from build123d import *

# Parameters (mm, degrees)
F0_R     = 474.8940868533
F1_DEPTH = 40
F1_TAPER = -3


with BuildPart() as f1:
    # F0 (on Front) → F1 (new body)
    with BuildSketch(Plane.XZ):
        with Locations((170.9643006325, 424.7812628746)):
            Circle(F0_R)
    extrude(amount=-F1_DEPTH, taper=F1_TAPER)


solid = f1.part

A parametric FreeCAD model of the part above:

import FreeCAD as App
import Part
import Sketcher
Q = App.Units.Quantity

doc = App.newDocument("Part")
body = doc.addObject("PartDesign::Body", "Body")

sketch1 = body.newObject("Sketcher::SketchObject", "Sketch")
sketch1.AttachmentSupport = (doc.getObject("XZ_Plane"), [""])
sketch1.MapMode = "FlatFace"
sketch1.addGeometry(Part.Circle(App.Vector(171, 425, 0), App.Vector(0, 0, 1), 475), False)
sketch1.addConstraint([
    Sketcher.Constraint("Diameter", 0, Q("949.788174 mm")),
    Sketcher.Constraint("DistanceX", -1, 1, 0, 3, Q("170.964301 mm")),
    Sketcher.Constraint("DistanceY", -1, 1, 0, 3, Q("424.781263 mm")),
])
pad1 = body.newObject("PartDesign::Pad", "Pad")
pad1.Profile = sketch1
pad1.Length = 40
pad1.Reversed = True
pad1.TaperAngle = 3

doc.recompute()
